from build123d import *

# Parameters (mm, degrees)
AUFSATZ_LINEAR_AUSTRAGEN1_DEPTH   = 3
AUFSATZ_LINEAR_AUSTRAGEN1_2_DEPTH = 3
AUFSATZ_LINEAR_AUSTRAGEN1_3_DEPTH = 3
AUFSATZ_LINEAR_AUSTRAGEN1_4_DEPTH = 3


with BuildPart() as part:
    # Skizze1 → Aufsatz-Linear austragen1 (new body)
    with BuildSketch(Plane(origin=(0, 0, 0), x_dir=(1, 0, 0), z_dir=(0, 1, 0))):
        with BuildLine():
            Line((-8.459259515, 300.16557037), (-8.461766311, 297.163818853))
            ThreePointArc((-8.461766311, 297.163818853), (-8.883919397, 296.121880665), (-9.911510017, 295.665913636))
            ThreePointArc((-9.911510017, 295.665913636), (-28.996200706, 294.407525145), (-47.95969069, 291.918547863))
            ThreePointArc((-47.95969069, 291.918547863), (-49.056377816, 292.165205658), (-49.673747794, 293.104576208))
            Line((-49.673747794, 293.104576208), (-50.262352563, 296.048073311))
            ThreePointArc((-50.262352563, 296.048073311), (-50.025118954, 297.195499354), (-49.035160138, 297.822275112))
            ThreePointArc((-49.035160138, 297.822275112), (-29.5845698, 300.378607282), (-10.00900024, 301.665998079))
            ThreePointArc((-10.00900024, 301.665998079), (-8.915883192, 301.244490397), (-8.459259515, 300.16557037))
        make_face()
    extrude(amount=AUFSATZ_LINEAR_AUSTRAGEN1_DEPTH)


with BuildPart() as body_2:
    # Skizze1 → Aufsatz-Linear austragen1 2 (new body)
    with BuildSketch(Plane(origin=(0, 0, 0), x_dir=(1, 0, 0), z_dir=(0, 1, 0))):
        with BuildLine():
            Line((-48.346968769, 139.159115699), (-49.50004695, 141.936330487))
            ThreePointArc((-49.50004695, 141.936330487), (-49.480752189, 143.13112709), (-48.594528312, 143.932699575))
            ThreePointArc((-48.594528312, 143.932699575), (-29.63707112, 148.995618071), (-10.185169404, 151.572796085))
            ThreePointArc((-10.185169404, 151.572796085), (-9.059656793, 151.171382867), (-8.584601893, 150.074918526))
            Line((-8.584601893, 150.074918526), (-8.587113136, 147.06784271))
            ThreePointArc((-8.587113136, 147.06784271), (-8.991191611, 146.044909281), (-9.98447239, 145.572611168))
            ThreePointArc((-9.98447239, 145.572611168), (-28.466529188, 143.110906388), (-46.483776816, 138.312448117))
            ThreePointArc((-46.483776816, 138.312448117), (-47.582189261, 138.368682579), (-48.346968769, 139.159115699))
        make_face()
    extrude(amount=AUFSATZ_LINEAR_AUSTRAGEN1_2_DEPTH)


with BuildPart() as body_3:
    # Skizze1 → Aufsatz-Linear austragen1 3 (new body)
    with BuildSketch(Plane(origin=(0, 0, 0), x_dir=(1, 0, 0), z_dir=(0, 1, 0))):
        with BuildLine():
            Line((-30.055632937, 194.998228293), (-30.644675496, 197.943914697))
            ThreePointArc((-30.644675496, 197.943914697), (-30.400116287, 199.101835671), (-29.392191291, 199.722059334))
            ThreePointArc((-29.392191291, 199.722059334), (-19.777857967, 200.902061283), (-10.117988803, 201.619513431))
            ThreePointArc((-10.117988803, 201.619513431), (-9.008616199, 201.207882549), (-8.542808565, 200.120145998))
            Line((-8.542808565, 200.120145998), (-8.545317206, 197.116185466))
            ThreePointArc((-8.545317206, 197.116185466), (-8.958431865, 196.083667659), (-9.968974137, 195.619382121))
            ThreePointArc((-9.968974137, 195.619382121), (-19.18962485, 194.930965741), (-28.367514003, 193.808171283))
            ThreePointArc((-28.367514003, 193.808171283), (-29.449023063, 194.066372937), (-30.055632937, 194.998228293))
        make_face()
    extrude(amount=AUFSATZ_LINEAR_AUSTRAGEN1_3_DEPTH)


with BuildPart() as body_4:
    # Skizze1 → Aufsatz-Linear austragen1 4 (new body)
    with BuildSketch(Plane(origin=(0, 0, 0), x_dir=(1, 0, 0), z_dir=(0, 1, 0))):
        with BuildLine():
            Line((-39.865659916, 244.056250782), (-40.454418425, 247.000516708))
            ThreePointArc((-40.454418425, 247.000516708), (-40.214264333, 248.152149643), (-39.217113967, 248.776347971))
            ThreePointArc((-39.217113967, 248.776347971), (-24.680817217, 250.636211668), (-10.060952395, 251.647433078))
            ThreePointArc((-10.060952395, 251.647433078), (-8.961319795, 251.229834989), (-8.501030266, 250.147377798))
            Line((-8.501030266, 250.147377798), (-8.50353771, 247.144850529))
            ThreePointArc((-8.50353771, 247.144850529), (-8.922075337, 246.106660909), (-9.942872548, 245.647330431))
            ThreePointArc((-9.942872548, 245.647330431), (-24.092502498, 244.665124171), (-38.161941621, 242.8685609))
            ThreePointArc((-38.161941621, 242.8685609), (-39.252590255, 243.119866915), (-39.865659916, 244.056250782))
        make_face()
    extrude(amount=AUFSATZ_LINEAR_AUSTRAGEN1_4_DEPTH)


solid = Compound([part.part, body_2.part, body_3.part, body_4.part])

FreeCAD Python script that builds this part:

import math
import FreeCAD as App
import Part
import Sketcher
Q = App.Units.Quantity

doc = App.newDocument("Part")
body = doc.addObject("PartDesign::Body", "Body")

sketch1 = body.newObject("Sketcher::SketchObject", "Sketch")
sketch1.AttachmentSupport = (doc.getObject("XZ_Plane"), [""])
sketch1.MapMode = "FlatFace"
sketch1.addGeometry([
    Part.LineSegment(App.Vector(-8.5, -297.2, 0), App.Vector(-8.5, -300.2, 0)),
    Part.ArcOfCircle(Part.Circle(App.Vector(-10, -300.2, 0), App.Vector(0, 0, 1), 1.5), math.radians(-92), math.radians(0)),
    Part.ArcOfCircle(Part.Circle(App.Vector(0, 0, 0), App.Vector(0, 0, 1), 301.8), math.radians(-99.35), math.radians(-91.9)),
    Part.ArcOfCircle(Part.Circle(App.Vector(-48.8, -296.3, 0), App.Vector(0, 0, 1), 1.5), math.radians(169), math.radians(261)),
    Part.LineSegment(App.Vector(-50.3, -296, 0), App.Vector(-49.7, -293.1, 0)),
    Part.ArcOfCircle(Part.Circle(App.Vector(-48.2, -293.4, 0), App.Vector(0, 0, 1), 1.5), math.radians(81), math.radians(169)),
    Part.ArcOfCircle(Part.Circle(App.Vector(0, 0, 0), App.Vector(0, 0, 1), 295.8), math.radians(-99.33), math.radians(-91.92)),
    Part.ArcOfCircle(Part.Circle(App.Vector(-10, -297.2, 0), App.Vector(0, 0, 1), 1.5), math.radians(0), math.radians(88)),
], False)
sketch1.addConstraint([
    Sketcher.Constraint("Tangent", 0, 2, 1, 2),
    Sketcher.Constraint("Tangent", 1, 1, 2, 2),
    Sketcher.Constraint("Tangent", 2, 1, 3, 2),
    Sketcher.Constraint("Tangent", 3, 1, 4, 1),
    Sketcher.Constraint("Tangent", 4, 2, 5, 2),
    Sketcher.Constraint("Tangent", 5, 1, 6, 1),
    Sketcher.Constraint("Tangent", 6, 2, 7, 2),
    Sketcher.Constraint("Tangent", 7, 1, 0, 1),
    Sketcher.Constraint("Coincident", 2, 3, -1, 1),
    Sketcher.Constraint("Coincident", 6, 3, -1, 1),
    Sketcher.Constraint("Equal", 1, 3),
    Sketcher.Constraint("Equal", 3, 5),
    Sketcher.Constraint("Equal", 5, 7),
    Sketcher.Constraint("Radius", 1, Q("1.5 mm")),
    Sketcher.Constraint("DistanceX", 1, 1, -1, 1, Q("10.009 mm")),
    Sketcher.Constraint("DistanceY", 1, 1, -1, 1, Q("301.665998 mm")),
    Sketcher.Constraint("Radius", 6, Q("295.831997 mm")),
    Sketcher.Constraint("DistanceY", 7, 3, 3, 1, Q("1.116998 mm")),
    Sketcher.Constraint("DistanceY", 3, 3, 2, 3, Q("296.342202 mm")),
    Sketcher.Constraint("DistanceX", 5, 3, 7, 3, Q("38.241102 mm")),
])
pad1 = body.newObject("PartDesign::Pad", "Pad")
pad1.Profile = sketch1
pad1.Length = 3
pad1.Reversed = True
body2 = doc.addObject("PartDesign::Body", "Body001")

sketch2 = body2.newObject("Sketcher::SketchObject", "Sketch001")
sketch2.AttachmentSupport = (doc.getObject("XZ_Plane001"), [""])
sketch2.MapMode = "FlatFace"
sketch2.addGeometry([
    Part.LineSegment(App.Vector(-49.5, -141.9, 0), App.Vector(-48.3, -139.2, 0)),
    Part.ArcOfCircle(Part.Circle(App.Vector(-47, -139.7, 0), App.Vector(0, 0, 1), 1.5), math.radians(71), math.radians(157)),
    Part.ArcOfCircle(Part.Circle(App.Vector(0, 0, 0), App.Vector(0, 0, 1), 145.9), math.radians(-108.58), math.radians(-93.92)),
    Part.ArcOfCircle(Part.Circle(App.Vector(-10.1, -147.1, 0), App.Vector(0, 0, 1), 1.5), math.radians(0), math.radians(86)),
    Part.LineSegment(App.Vector(-8.6, -147.1, 0), App.Vector(-8.6, -150.1, 0)),
    Part.ArcOfCircle(Part.Circle(App.Vector(-10.1, -150.1, 0), App.Vector(0, 0, 1), 1.5), math.radians(-94), math.radians(0)),
    Part.ArcOfCircle(Part.Circle(App.Vector(0, 0, 0), App.Vector(0, 0, 1), 151.9), math.radians(-108.66), math.radians(-93.84)),
    Part.ArcOfCircle(Part.Circle(App.Vector(-48.1, -142.5, 0), App.Vector(0, 0, 1), 1.5), math.radians(157), math.radians(251)),
], False)
sketch2.addConstraint([
    Sketcher.Constraint("Tangent", 0, 2, 1, 2),
    Sketcher.Constraint("Tangent", 1, 1, 2, 1),
    Sketcher.Constraint("Tangent", 2, 2, 3, 2),
    Sketcher.Constraint("Tangent", 3, 1, 4, 1),
    Sketcher.Constraint("Tangent", 4, 2, 5, 2),
    Sketcher.Constraint("Tangent", 5, 1, 6, 2),
    Sketcher.Constraint("Tangent", 6, 1, 7, 2),
    Sketcher.Constraint("Tangent", 7, 1, 0, 1),
    Sketcher.Constraint("Coincident", 2, 3, -1, 1),
    Sketcher.Constraint("Coincident", 6, 3, -1, 1),
    Sketcher.Constraint("Equal", 1, 3),
    Sketcher.Constraint("Equal", 3, 5),
    Sketcher.Constraint("Equal", 5, 7),
    Sketcher.Constraint("Equal", 0, 4),
    Sketcher.Constraint("Radius", 1, Q("1.5 mm")),
    Sketcher.Constraint("Radius", 2, Q("145.914615 mm")),
    Sketcher.Constraint("Radius", 6, Q("151.914615 mm")),
    Sketcher.Constraint("DistanceX", 5, 3, -1, 1, Q("10.084601 mm")),
    Sketcher.Constraint("DistanceY", 6, 1, -1, 1, Q("143.9327 mm")),
    Sketcher.Constraint("DistanceY", 2, 2, 7, 3, Q("3.061098 mm")),
])
pad2 = body2.newObject("PartDesign::Pad", "Pad001")
pad2.Profile = sketch2
pad2.Length = 3
pad2.Reversed = True
body3 = doc.addObject("PartDesign::Body", "Body002")

sketch3 = body3.newObject("Sketcher::SketchObject", "Sketch002")
sketch3.AttachmentSupport = (doc.getObject("XZ_Plane002"), [""])
sketch3.MapMode = "FlatFace"
sketch3.addGeometry([
    Part.LineSegment(App.Vector(-30.644675, -197.943915, 0), App.Vector(-30.055633, -194.998228, 0)),
    Part.ArcOfCircle(Part.Circle(App.Vector(-28.584753, -195.292357, 0), App.Vector(0, 0, 1), 1.5), math.radians(81.672803), math.radians(168.691839)),
    Part.ArcOfCircle(Part.Circle(App.Vector(0, 0, 0), App.Vector(0, 0, 1), 195.873233), math.radians(-98.327197), math.radians(-92.917331)),
    Part.ArcOfCircle(Part.Circle(App.Vector(-10.045317, -197.117438, 0), App.Vector(0, 0, 1), 1.5), math.radians(0.047848), math.radians(87.082669)),
    Part.LineSegment(App.Vector(-8.545317, -197.116185, 0), App.Vector(-8.542809, -200.120146, 0)),
    Part.ArcOfCircle(Part.Circle(App.Vector(-10.042808, -200.121399, 0), App.Vector(0, 0, 1), 1.5), math.radians(-92.872897), math.radians(0.047848)),
    Part.ArcOfCircle(Part.Circle(App.Vector(0, 0, 0), App.Vector(0, 0, 1), 201.873232), math.radians(-98.371867), math.radians(-92.872897)),
    Part.ArcOfCircle(Part.Circle(App.Vector(-29.173795, -198.238043, 0), App.Vector(0, 0, 1), 1.5), math.radians(168.691839), math.radians(261.628133)),
], False)
sketch3.addConstraint([
    Sketcher.Constraint("Coincident", 0, 2, 1, 2),
    Sketcher.Constraint("Coincident", 1, 1, 2, 1),
    Sketcher.Constraint("Coincident", 2, 2, 3, 2),
    Sketcher.Constraint("Coincident", 3, 1, 4, 1),
    Sketcher.Constraint("Coincident", 4, 2, 5, 2),
    Sketcher.Constraint("Coincident", 5, 1, 6, 2),
    Sketcher.Constraint("Coincident", 6, 1, 7, 2),
    Sketcher.Constraint("Coincident", 7, 1, 0, 1),
    Sketcher.Constraint("Coincident", 2, 3, -1, 1),
    Sketcher.Constraint("Coincident", 6, 3, -1, 1),
    Sketcher.Constraint("Radius", 1, Q("1.5 mm")),
    Sketcher.Constraint("Radius", 3, Q("1.5 mm")),
    Sketcher.Constraint("Radius", 5, Q("1.5 mm")),
    Sketcher.Constraint("Radius", 7, Q("1.5 mm")),
    Sketcher.Constraint("Radius", 2, Q("195.873233 mm")),
    Sketcher.Constraint("Radius", 6, Q("201.873232 mm")),
    Sketcher.Constraint("DistanceY", 5, 3, -1, 1, Q("200.121399 mm")),
    Sketcher.Constraint("Distance", 4, Q("3.003962 mm")),
    Sketcher.Constraint("DistanceY", 3, 3, -1, 1, Q("197.117438 mm")),
    Sketcher.Constraint("DistanceY", 0, 2, -1, 1, Q("194.998228 mm")),
    Sketcher.Constraint("DistanceY", 1, 1, -1, 1, Q("193.808171 mm")),
    Sketcher.Constraint("DistanceX", 5, 1, -1, 1, Q("10.117989 mm")),
    Sketcher.Constraint("DistanceX", 6, 1, -1, 1, Q("29.392191 mm")),
    Sketcher.Constraint("DistanceY", 3, 3, 1, 3, Q("1.825081 mm")),
    Sketcher.Constraint("DistanceX", 7, 3, 3, 3, Q("19.128479 mm")),
    Sketcher.Constraint("DistanceX", 1, 1, 2, 2, Q("18.39854 mm")),
    Sketcher.Constraint("DistanceY", 3, 1, 1, 3, Q("1.823828 mm")),
    Sketcher.Constraint("DistanceX", 7, 1, 7, 3, Q("1.47088 mm")),
])
pad3 = body3.newObject("PartDesign::Pad", "Pad002")
pad3.Profile = sketch3
pad3.Length = 3
pad3.Reversed = True
body4 = doc.addObject("PartDesign::Body", "Body003")

sketch4 = body4.newObject("Sketcher::SketchObject", "Sketch003")
sketch4.AttachmentSupport = (doc.getObject("XZ_Plane003"), [""])
sketch4.MapMode = "FlatFace"
sketch4.addGeometry([
    Part.LineSegment(App.Vector(-40.454418, -247.000517, 0), App.Vector(-39.86566, -244.056251, 0)),
    Part.ArcOfCircle(Part.Circle(App.Vector(-38.39478, -244.35038, 0), App.Vector(0, 0, 1), 1.5), math.radians(81.070128), math.radians(168.691839)),
    Part.ArcOfCircle(Part.Circle(App.Vector(0, 0, 0), App.Vector(0, 0, 1), 245.848473), math.radians(-98.929872), math.radians(-92.317851)),
    Part.ArcOfCircle(Part.Circle(App.Vector(-10.003537, -247.146103, 0), App.Vector(0, 0, 1), 1.5), math.radians(0.047848), math.radians(87.682149)),
    Part.LineSegment(App.Vector(-8.503538, -247.144851, 0), App.Vector(-8.50103, -250.147378, 0)),
    Part.ArcOfCircle(Part.Circle(App.Vector(-10.00103, -250.14863, 0), App.Vector(0, 0, 1), 1.5), math.radians(-92.289486), math.radians(0.047848)),
    Part.ArcOfCircle(Part.Circle(App.Vector(0, 0, 0), App.Vector(0, 0, 1), 251.848473), math.radians(-98.958388), math.radians(-92.289486)),
    Part.ArcOfCircle(Part.Circle(App.Vector(-38.983538, -247.294645, 0), App.Vector(0, 0, 1), 1.5), math.radians(168.691839), math.radians(261.041612)),
], False)
sketch4.addConstraint([
    Sketcher.Constraint("Coincident", 0, 2, 1, 2),
    Sketcher.Constraint("Coincident", 1, 1, 2, 1),
    Sketcher.Constraint("Coincident", 2, 2, 3, 2),
    Sketcher.Constraint("Coincident", 3, 1, 4, 1),
    Sketcher.Constraint("Coincident", 4, 2, 5, 2),
    Sketcher.Constraint("Coincident", 5, 1, 6, 2),
    Sketcher.Constraint("Coincident", 6, 1, 7, 2),
    Sketcher.Constraint("Coincident", 7, 1, 0, 1),
    Sketcher.Constraint("Coincident", 2, 3, -1, 1),
    Sketcher.Constraint("Coincident", 6, 3, -1, 1),
    Sketcher.Constraint("Radius", 1, Q("1.5 mm")),
    Sketcher.Constraint("Radius", 3, Q("1.5 mm")),
    Sketcher.Constraint("Radius", 5, Q("1.5 mm")),
    Sketcher.Constraint("Radius", 7, Q("1.5 mm")),
    Sketcher.Constraint("DistanceX", 7, 3, 3, 3, Q("28.980001 mm")),
    Sketcher.Constraint("Radius", 2, Q("245.848473 mm")),
    Sketcher.Constraint("Radius", 6, Q("251.848473 mm")),
    Sketcher.Constraint("DistanceY", 4, 2, 1, 3, Q("5.796998 mm")),
    Sketcher.Constraint("DistanceY", 5, 3, 2, 2, Q("4.5013 mm")),
    Sketcher.Constraint("Distance", 4, Q("3.002528 mm")),
    Sketcher.Constraint("DistanceX", 1, 3, -1, 1, Q("38.39478 mm")),
    Sketcher.Constraint("DistanceX", 5, 3, -1, 1, Q("10.00103 mm")),
    Sketcher.Constraint("DistanceX", 7, 3, -1, 1, Q("38.983538 mm")),
    Sketcher.Constraint("DistanceX", 0, 2, -1, 1, Q("39.86566 mm")),
    Sketcher.Constraint("DistanceX", 1, 1, -1, 1, Q("38.161942 mm")),
    Sketcher.Constraint("DistanceX", 7, 1, -1, 1, Q("40.454418 mm")),
    Sketcher.Constraint("DistanceY", 5, 1, 3, 3, Q("4.50133 mm")),
    Sketcher.Constraint("DistanceY", 6, 1, 1, 3, Q("4.425968 mm")),
])
pad4 = body4.newObject("PartDesign::Pad", "Pad003")
pad4.Profile = sketch4
pad4.Length = 3
pad4.Reversed = True

doc.recompute()
